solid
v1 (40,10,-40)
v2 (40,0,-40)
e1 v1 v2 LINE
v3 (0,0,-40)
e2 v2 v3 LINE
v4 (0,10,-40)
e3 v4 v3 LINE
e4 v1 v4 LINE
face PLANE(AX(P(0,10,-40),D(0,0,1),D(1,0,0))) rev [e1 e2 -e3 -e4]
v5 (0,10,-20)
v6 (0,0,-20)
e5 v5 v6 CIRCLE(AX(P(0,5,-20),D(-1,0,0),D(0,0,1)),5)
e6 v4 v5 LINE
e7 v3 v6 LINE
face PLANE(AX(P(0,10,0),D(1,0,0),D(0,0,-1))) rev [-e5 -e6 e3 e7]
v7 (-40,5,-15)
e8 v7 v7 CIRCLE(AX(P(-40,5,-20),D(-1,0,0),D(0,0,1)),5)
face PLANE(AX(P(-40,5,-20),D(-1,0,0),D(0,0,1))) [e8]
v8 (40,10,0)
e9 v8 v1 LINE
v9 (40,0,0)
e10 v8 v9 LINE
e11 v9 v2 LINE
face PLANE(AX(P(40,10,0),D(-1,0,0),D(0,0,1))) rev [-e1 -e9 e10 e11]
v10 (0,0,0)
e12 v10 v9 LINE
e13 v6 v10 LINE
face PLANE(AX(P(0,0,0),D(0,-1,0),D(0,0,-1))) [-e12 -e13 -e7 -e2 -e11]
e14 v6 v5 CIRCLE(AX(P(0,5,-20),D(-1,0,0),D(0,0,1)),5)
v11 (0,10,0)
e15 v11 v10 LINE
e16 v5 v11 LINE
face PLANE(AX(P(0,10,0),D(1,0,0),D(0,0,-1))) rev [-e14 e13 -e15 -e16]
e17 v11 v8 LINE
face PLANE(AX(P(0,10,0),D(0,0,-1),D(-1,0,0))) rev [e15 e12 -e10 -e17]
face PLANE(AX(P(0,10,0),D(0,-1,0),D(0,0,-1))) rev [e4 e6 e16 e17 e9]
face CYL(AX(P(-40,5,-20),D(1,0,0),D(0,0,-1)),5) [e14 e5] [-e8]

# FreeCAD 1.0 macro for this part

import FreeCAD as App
import Part
import Sketcher

V = App.Vector

doc = App.newDocument("Part")
body = doc.addObject("PartDesign::Body", "Body")

# Sketch on XZ plane
sketch1 = body.newObject("Sketcher::SketchObject", "Sketch")
sketch1.AttachmentSupport = (doc.getObject("XZ_Plane"), [""])
sketch1.MapMode = "FlatFace"
sketch1.addGeometry([
    Part.LineSegment(V(0, -40, 0), V(0, 0, 0)),
    Part.LineSegment(V(0, 0, 0), V(40, 0, 0)),
    Part.LineSegment(V(40, 0, 0), V(40, -40, 0)),
    Part.LineSegment(V(40, -40, 0), V(0, -40, 0)),
], False)
sketch1.addConstraint([
    Sketcher.Constraint("Coincident", 0, 2, 1, 1),
    Sketcher.Constraint("Coincident", 1, 2, 2, 1),
    Sketcher.Constraint("Coincident", 2, 2, 3, 1),
    Sketcher.Constraint("Coincident", 3, 2, 0, 1),
    Sketcher.Constraint("Vertical", 0),
    Sketcher.Constraint("Horizontal", 1),
    Sketcher.Constraint("Vertical", 2),
    Sketcher.Constraint("Horizontal", 3),
    Sketcher.Constraint("Coincident", 0, 2, -1, 1),
    Sketcher.Constraint("Equal", 3, 0),
    Sketcher.Constraint("DistanceX", 1, 1, 1, 2, 40.0),
])
pad1 = body.newObject("PartDesign::Pad", "Pad")
pad1.Profile = sketch1
pad1.Length = 10
pad1.Reversed = True

# Sketch on YZ plane
sketch2 = body.newObject("Sketcher::SketchObject", "Sketch001")
sketch2.AttachmentSupport = (doc.getObject("YZ_Plane"), [""])
sketch2.MapMode = "FlatFace"
sketch2.addGeometry(Part.Circle(V(5, -20, 0), V(0, 0, 1), 5), False)
sketch2.addConstraint([
    Sketcher.Constraint("Diameter", 0, 10.0),
    Sketcher.Constraint("DistanceX", -1, 1, 0, 3, 5.0),
    Sketcher.Constraint("DistanceY", 0, 3, -1, 1, 20.0),
])
pad2 = body.newObject("PartDesign::Pad", "Pad001")
pad2.Profile = sketch2
pad2.Length = 40
pad2.Reversed = True

doc.recompute()
